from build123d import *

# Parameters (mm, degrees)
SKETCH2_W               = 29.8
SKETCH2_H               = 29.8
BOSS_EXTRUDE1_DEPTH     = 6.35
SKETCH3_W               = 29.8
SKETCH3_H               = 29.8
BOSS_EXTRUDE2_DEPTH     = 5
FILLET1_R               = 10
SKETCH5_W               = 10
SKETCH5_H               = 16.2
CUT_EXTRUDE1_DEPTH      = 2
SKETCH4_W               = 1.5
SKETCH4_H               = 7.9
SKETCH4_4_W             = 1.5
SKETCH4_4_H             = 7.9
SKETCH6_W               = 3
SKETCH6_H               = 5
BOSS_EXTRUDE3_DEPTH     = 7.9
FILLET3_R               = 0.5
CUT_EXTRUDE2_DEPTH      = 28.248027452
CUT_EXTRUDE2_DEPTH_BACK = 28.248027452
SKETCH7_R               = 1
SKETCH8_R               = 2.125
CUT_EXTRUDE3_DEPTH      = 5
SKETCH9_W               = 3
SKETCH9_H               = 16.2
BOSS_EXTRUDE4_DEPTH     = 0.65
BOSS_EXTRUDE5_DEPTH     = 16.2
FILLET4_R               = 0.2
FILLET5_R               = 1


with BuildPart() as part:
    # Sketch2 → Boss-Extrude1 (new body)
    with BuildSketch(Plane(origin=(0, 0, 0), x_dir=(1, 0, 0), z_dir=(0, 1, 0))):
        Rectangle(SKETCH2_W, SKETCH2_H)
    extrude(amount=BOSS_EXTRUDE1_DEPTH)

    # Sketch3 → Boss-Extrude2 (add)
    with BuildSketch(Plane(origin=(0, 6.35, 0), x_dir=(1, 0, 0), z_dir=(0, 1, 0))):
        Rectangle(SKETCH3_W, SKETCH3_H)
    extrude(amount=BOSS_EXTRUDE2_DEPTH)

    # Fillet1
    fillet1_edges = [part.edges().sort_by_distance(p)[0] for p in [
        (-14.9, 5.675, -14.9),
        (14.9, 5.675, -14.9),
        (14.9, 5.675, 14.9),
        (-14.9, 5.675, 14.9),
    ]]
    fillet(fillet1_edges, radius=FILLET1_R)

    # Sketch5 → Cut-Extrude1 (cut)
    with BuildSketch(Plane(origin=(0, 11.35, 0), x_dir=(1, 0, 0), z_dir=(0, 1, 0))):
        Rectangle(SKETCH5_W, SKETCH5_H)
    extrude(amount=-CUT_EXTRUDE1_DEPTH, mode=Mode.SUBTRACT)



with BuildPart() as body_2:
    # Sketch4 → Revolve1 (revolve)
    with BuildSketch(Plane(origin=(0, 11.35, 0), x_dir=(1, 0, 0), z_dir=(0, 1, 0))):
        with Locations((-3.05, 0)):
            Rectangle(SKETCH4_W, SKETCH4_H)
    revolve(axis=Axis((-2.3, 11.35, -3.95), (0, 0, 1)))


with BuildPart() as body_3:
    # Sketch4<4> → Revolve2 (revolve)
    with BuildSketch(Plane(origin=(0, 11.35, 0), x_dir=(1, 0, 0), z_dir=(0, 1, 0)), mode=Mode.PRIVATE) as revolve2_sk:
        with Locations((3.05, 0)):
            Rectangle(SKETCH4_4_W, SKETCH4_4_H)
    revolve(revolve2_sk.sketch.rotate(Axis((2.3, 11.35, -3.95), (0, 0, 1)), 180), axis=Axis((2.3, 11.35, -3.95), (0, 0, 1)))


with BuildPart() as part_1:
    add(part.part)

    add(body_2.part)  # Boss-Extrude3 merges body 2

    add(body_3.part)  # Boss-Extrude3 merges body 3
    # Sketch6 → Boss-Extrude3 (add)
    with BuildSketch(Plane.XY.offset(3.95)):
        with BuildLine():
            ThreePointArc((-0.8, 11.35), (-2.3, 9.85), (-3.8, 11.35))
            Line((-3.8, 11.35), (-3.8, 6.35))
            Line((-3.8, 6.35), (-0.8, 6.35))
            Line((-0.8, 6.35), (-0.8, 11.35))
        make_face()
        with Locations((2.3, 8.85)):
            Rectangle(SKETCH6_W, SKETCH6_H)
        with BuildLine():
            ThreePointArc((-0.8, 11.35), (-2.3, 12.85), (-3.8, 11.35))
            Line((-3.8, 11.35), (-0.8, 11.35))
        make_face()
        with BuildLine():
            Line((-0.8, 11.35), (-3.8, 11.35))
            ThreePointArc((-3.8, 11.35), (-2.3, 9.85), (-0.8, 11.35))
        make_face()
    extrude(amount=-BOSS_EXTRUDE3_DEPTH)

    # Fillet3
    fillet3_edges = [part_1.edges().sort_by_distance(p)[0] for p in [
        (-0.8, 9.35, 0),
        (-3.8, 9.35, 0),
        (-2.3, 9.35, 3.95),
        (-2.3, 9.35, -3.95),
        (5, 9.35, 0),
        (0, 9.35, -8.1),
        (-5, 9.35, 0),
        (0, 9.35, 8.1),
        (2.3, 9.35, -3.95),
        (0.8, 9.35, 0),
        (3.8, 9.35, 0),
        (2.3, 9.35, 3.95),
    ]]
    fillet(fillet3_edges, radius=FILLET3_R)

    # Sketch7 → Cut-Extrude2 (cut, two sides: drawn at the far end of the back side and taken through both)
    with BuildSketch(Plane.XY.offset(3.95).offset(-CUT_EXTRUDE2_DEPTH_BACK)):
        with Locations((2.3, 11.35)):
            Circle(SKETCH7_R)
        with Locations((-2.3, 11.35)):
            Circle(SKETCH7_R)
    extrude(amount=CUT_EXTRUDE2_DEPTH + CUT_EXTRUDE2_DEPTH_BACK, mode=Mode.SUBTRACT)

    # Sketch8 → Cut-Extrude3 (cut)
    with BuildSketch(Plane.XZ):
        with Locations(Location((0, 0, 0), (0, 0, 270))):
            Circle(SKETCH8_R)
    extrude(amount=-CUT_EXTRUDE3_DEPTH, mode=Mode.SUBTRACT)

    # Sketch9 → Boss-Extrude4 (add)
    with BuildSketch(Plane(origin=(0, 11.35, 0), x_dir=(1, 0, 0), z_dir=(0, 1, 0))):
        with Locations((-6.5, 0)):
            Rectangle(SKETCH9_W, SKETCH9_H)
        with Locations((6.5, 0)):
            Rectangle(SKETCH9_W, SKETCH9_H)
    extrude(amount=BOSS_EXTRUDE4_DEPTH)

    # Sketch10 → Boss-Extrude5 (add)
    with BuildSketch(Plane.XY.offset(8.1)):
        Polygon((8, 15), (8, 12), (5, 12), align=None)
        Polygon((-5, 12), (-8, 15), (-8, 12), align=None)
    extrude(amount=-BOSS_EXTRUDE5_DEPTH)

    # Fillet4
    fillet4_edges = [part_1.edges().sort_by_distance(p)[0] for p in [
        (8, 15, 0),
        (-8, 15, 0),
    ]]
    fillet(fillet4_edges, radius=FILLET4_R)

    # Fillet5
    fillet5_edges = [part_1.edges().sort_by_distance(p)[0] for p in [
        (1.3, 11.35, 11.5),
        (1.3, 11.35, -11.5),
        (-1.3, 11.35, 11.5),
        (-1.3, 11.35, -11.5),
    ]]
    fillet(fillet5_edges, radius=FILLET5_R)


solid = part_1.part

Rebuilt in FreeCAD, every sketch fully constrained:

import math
import FreeCAD as App
import Part
import Sketcher
from FreeCAD import Vector


def edges_at(feature, points):
    """Names of the edges that pass closest to the given points."""
    edges = feature.Shape.Edges
    near = lambda p: min(range(len(edges)), key=lambda i: edges[i].distToShape(Part.Vertex(*p))[0])
    return sorted({f"Edge{near(p) + 1}" for p in points})

doc = App.newDocument("Part")
body = doc.addObject("PartDesign::Body", "Body")

sketch1 = body.newObject("Sketcher::SketchObject", "Sketch")
sketch1.AttachmentSupport = (doc.getObject("XZ_Plane"), [""])
sketch1.MapMode = "FlatFace"
sketch1.addGeometry(Part.LineSegment(Vector(-14.9, -14.9, 0), Vector(-14.9, 14.9, 0)), False)
sketch1.addGeometry(Part.LineSegment(Vector(-14.9, 14.9, 0), Vector(14.9, 14.9, 0)), False)
sketch1.addGeometry(Part.LineSegment(Vector(14.9, 14.9, 0), Vector(14.9, -14.9, 0)), False)
sketch1.addGeometry(Part.LineSegment(Vector(14.9, -14.9, 0), Vector(-14.9, -14.9, 0)), False)
sketch1.addConstraint(Sketcher.Constraint("Coincident", 0, 2, 1, 1))
sketch1.addConstraint(Sketcher.Constraint("Coincident", 1, 2, 2, 1))
sketch1.addConstraint(Sketcher.Constraint("Coincident", 2, 2, 3, 1))
sketch1.addConstraint(Sketcher.Constraint("Coincident", 3, 2, 0, 1))
sketch1.addConstraint(Sketcher.Constraint("Vertical", 0))
sketch1.addConstraint(Sketcher.Constraint("Horizontal", 1))
sketch1.addConstraint(Sketcher.Constraint("Vertical", 2))
sketch1.addConstraint(Sketcher.Constraint("Horizontal", 3))
sketch1.addConstraint(Sketcher.Constraint("Symmetric", 0, 2, 2, 2, -1, 1))
sketch1.addConstraint(Sketcher.Constraint("Equal", 3, 0))
sketch1.addConstraint(Sketcher.Constraint("DistanceX", 1, 1, 1, 2, 29.8))
pad1 = body.newObject("PartDesign::Pad", "Pad")
pad1.Profile = sketch1
pad1.Length = 6.35
pad1.Reversed = True

sketch2 = body.newObject("Sketcher::SketchObject", "Sketch001")
sketch2.AttachmentSupport = (doc.getObject("XZ_Plane"), [""])
sketch2.MapMode = "FlatFace"
sketch2.AttachmentOffset = App.Placement(Vector(0, 0, -6.35), App.Rotation())
sketch2.addGeometry(Part.LineSegment(Vector(-14.9, -14.9, 0), Vector(-14.9, 14.9, 0)), False)
sketch2.addGeometry(Part.LineSegment(Vector(-14.9, 14.9, 0), Vector(14.9, 14.9, 0)), False)
sketch2.addGeometry(Part.LineSegment(Vector(14.9, 14.9, 0), Vector(14.9, -14.9, 0)), False)
sketch2.addGeometry(Part.LineSegment(Vector(14.9, -14.9, 0), Vector(-14.9, -14.9, 0)), False)
sketch2.addConstraint(Sketcher.Constraint("Coincident", 0, 2, 1, 1))
sketch2.addConstraint(Sketcher.Constraint("Coincident", 1, 2, 2, 1))
sketch2.addConstraint(Sketcher.Constraint("Coincident", 2, 2, 3, 1))
sketch2.addConstraint(Sketcher.Constraint("Coincident", 3, 2, 0, 1))
sketch2.addConstraint(Sketcher.Constraint("Vertical", 0))
sketch2.addConstraint(Sketcher.Constraint("Horizontal", 1))
sketch2.addConstraint(Sketcher.Constraint("Vertical", 2))
sketch2.addConstraint(Sketcher.Constraint("Horizontal", 3))
sketch2.addConstraint(Sketcher.Constraint("Symmetric", 0, 2, 2, 2, -1, 1))
sketch2.addConstraint(Sketcher.Constraint("Equal", 3, 0))
sketch2.addConstraint(Sketcher.Constraint("DistanceX", 1, 1, 1, 2, 29.8))
pad2 = body.newObject("PartDesign::Pad", "Pad001")
pad2.Profile = sketch2
pad2.Length = 5
pad2.Reversed = True
doc.recompute()

fillet = body.newObject("PartDesign::Fillet", "Fillet")
fillet.Base = (pad2, edges_at(pad2, [
    (-14.9, 5.675, -14.9),
    (14.9, 5.675, -14.9),
    (14.9, 5.675, 14.9),
    (-14.9, 5.675, 14.9),
]))
fillet.Radius = 10

sketch3 = body.newObject("Sketcher::SketchObject", "Sketch002")
sketch3.AttachmentSupport = (doc.getObject("XZ_Plane"), [""])
sketch3.MapMode = "FlatFace"
sketch3.AttachmentOffset = App.Placement(Vector(0, 0, -11.35), App.Rotation())
sketch3.addGeometry(Part.LineSegment(Vector(-5, -8.1, 0), Vector(-5, 8.1, 0)), False)
sketch3.addGeometry(Part.LineSegment(Vector(-5, 8.1, 0), Vector(5, 8.1, 0)), False)
sketch3.addGeometry(Part.LineSegment(Vector(5, 8.1, 0), Vector(5, -8.1, 0)), False)
sketch3.addGeometry(Part.LineSegment(Vector(5, -8.1, 0), Vector(-5, -8.1, 0)), False)
sketch3.addConstraint(Sketcher.Constraint("Coincident", 0, 2, 1, 1))
sketch3.addConstraint(Sketcher.Constraint("Coincident", 1, 2, 2, 1))
sketch3.addConstraint(Sketcher.Constraint("Coincident", 2, 2, 3, 1))
sketch3.addConstraint(Sketcher.Constraint("Coincident", 3, 2, 0, 1))
sketch3.addConstraint(Sketcher.Constraint("Vertical", 0))
sketch3.addConstraint(Sketcher.Constraint("Horizontal", 1))
sketch3.addConstraint(Sketcher.Constraint("Vertical", 2))
sketch3.addConstraint(Sketcher.Constraint("Horizontal", 3))
sketch3.addConstraint(Sketcher.Constraint("Symmetric", 0, 2, 2, 2, -1, 1))
sketch3.addConstraint(Sketcher.Constraint("DistanceX", 1, 1, 1, 2, 10.0))
sketch3.addConstraint(Sketcher.Constraint("DistanceY", 0, 1, 0, 2, 16.2))
pocket1 = body.newObject("PartDesign::Pocket", "Pocket")
pocket1.Profile = sketch3
pocket1.Length = 2
pocket1.Reversed = True
body2 = doc.addObject("PartDesign::Body", "Body001")

sketch4 = body2.newObject("Sketcher::SketchObject", "Sketch003")
sketch4.AttachmentSupport = (doc.getObject("XZ_Plane001"), [""])
sketch4.MapMode = "FlatFace"
sketch4.AttachmentOffset = App.Placement(Vector(0, 0, -11.35), App.Rotation())
sketch4.addGeometry(Part.LineSegment(Vector(-3.8, -3.95, 0), Vector(-3.8, 3.95, 0)), False)
sketch4.addGeometry(Part.LineSegment(Vector(-3.8, 3.95, 0), Vector(-2.3, 3.95, 0)), False)
sketch4.addGeometry(Part.LineSegment(Vector(-2.3, 3.95, 0), Vector(-2.3, -3.95, 0)), False)
sketch4.addGeometry(Part.LineSegment(Vector(-2.3, -3.95, 0), Vector(-3.8, -3.95, 0)), False)
sketch4.addGeometry(Part.LineSegment(Vector(-2.3, -3.95, 0), Vector(-2.3, 3.95, 0)), True)
sketch4.addConstraint(Sketcher.Constraint("Coincident", 0, 2, 1, 1))
sketch4.addConstraint(Sketcher.Constraint("Coincident", 1, 2, 2, 1))
sketch4.addConstraint(Sketcher.Constraint("Coincident", 2, 2, 3, 1))
sketch4.addConstraint(Sketcher.Constraint("Coincident", 3, 2, 0, 1))
sketch4.addConstraint(Sketcher.Constraint("Vertical", 0))
sketch4.addConstraint(Sketcher.Constraint("Horizontal", 1))
sketch4.addConstraint(Sketcher.Constraint("Vertical", 2))
sketch4.addConstraint(Sketcher.Constraint("Horizontal", 3))
sketch4.addConstraint(Sketcher.Constraint("Vertical", 4))
sketch4.addConstraint(Sketcher.Constraint("Coincident", 4, 1, 2, 2))
sketch4.addConstraint(Sketcher.Constraint("Horizontal", 0, 2, 4, 2))
sketch4.addConstraint(Sketcher.Constraint("DistanceX", 1, 1, 1, 2, 1.5))
sketch4.addConstraint(Sketcher.Constraint("DistanceY", 0, 1, 0, 2, 7.9))
sketch4.addConstraint(Sketcher.Constraint("DistanceX", 0, 2, -1, 1, 3.8))
sketch4.addConstraint(Sketcher.Constraint("DistanceY", -1, 1, 0, 2, 3.95))
revolution = body2.newObject("PartDesign::Revolution", "Revolution")
revolution.Profile = sketch4
revolution.ReferenceAxis = (sketch4, ["Axis0"])
revolution.Angle = 360
body3 = doc.addObject("PartDesign::Body", "Body002")

sketch5 = body3.newObject("Sketcher::SketchObject", "Sketch004")
sketch5.AttachmentSupport = (doc.getObject("XZ_Plane002"), [""])
sketch5.MapMode = "FlatFace"
sketch5.AttachmentOffset = App.Placement(Vector(0, 0, -11.35), App.Rotation())
sketch5.addGeometry(Part.LineSegment(Vector(2.3, -3.95, 0), Vector(2.3, 3.95, 0)), False)
sketch5.addGeometry(Part.LineSegment(Vector(2.3, 3.95, 0), Vector(3.8, 3.95, 0)), False)
sketch5.addGeometry(Part.LineSegment(Vector(3.8, 3.95, 0), Vector(3.8, -3.95, 0)), False)
sketch5.addGeometry(Part.LineSegment(Vector(3.8, -3.95, 0), Vector(2.3, -3.95, 0)), False)
sketch5.addGeometry(Part.LineSegment(Vector(2.3, -3.95, 0), Vector(2.3, 3.95, 0)), True)
sketch5.addConstraint(Sketcher.Constraint("Coincident", 0, 2, 1, 1))
sketch5.addConstraint(Sketcher.Constraint("Coincident", 1, 2, 2, 1))
sketch5.addConstraint(Sketcher.Constraint("Coincident", 2, 2, 3, 1))
sketch5.addConstraint(Sketcher.Constraint("Coincident", 3, 2, 0, 1))
sketch5.addConstraint(Sketcher.Constraint("Vertical", 0))
sketch5.addConstraint(Sketcher.Constraint("Horizontal", 1))
sketch5.addConstraint(Sketcher.Constraint("Vertical", 2))
sketch5.addConstraint(Sketcher.Constraint("Horizontal", 3))
sketch5.addConstraint(Sketcher.Constraint("Vertical", 4))
sketch5.addConstraint(Sketcher.Constraint("Coincident", 4, 1, 3, 2))
sketch5.addConstraint(Sketcher.Constraint("Horizontal", 1, 2, 4, 2))
sketch5.addConstraint(Sketcher.Constraint("DistanceX", 1, 1, 1, 2, 1.5))
sketch5.addConstraint(Sketcher.Constraint("DistanceY", 0, 1, 0, 2, 7.9))
sketch5.addConstraint(Sketcher.Constraint("DistanceX", -1, 1, 0, 2, 2.3))
sketch5.addConstraint(Sketcher.Constraint("DistanceY", -1, 1, 0, 2, 3.95))
revolution2 = body3.newObject("PartDesign::Revolution", "Revolution001")
revolution2.Profile = sketch5
revolution2.ReferenceAxis = (sketch5, ["Axis0"])
revolution2.Angle = 360
body.AllowCompound = True
doc.recompute()

boolean = body.newObject("PartDesign::Boolean", "Boolean")
boolean.Type = "Fuse"
boolean.addObjects([body2])
doc.recompute()

boolean2 = body.newObject("PartDesign::Boolean", "Boolean001")
boolean2.Type = "Fuse"
boolean2.addObjects([body3])

sketch6 = body.newObject("Sketcher::SketchObject", "Sketch005")
sketch6.AttachmentSupport = (doc.getObject("XY_Plane"), [""])
sketch6.MapMode = "FlatFace"
sketch6.AttachmentOffset = App.Placement(Vector(0, 0, 3.95), App.Rotation())
sketch6.addGeometry(Part.LineSegment(Vector(-3.8, 11.35, 0), Vector(-3.8, 6.35, 0)), False)
sketch6.addGeometry(Part.LineSegment(Vector(-3.8, 6.35, 0), Vector(-0.8, 6.35, 0)), False)
sketch6.addGeometry(Part.LineSegment(Vector(-0.8, 6.35, 0), Vector(-0.8, 11.35, 0)), False)
sketch6.addGeometry(Part.ArcOfCircle(Part.Circle(Vector(-2.3, 11.35, 0), Vector(0, 0, 1), 1.5), math.radians(0), math.radians(180)), False)
sketch6.addGeometry(Part.LineSegment(Vector(0.8, 11.35, 0), Vector(0.8, 6.35, 0)), False)
sketch6.addGeometry(Part.LineSegment(Vector(0.8, 6.35, 0), Vector(3.8, 6.35, 0)), False)
sketch6.addGeometry(Part.LineSegment(Vector(3.8, 6.35, 0), Vector(3.8, 11.35, 0)), False)
sketch6.addGeometry(Part.LineSegment(Vector(3.8, 11.35, 0), Vector(0.8, 11.35, 0)), False)
sketch6.addConstraint(Sketcher.Constraint("Coincident", 0, 2, 1, 1))
sketch6.addConstraint(Sketcher.Constraint("Coincident", 1, 2, 2, 1))
sketch6.addConstraint(Sketcher.Constraint("Tangent", 2, 2, 3, 1))
sketch6.addConstraint(Sketcher.Constraint("Tangent", 3, 2, 0, 1))
sketch6.addConstraint(Sketcher.Constraint("Coincident", 4, 2, 5, 1))
sketch6.addConstraint(Sketcher.Constraint("Coincident", 5, 2, 6, 1))
sketch6.addConstraint(Sketcher.Constraint("Coincident", 6, 2, 7, 1))
sketch6.addConstraint(Sketcher.Constraint("Coincident", 7, 2, 4, 1))
sketch6.addConstraint(Sketcher.Constraint("Vertical", 0))
sketch6.addConstraint(Sketcher.Constraint("Horizontal", 1))
sketch6.addConstraint(Sketcher.Constraint("Vertical", 2))
sketch6.addConstraint(Sketcher.Constraint("Vertical", 4))
sketch6.addConstraint(Sketcher.Constraint("Horizontal", 5))
sketch6.addConstraint(Sketcher.Constraint("Vertical", 6))
sketch6.addConstraint(Sketcher.Constraint("Horizontal", 7))
sketch6.addConstraint(Sketcher.Constraint("Symmetric", 1, 2, 4, 2, -2))
sketch6.addConstraint(Sketcher.Constraint("Symmetric", 3, 2, 6, 2, -2))
sketch6.addConstraint(Sketcher.Constraint("Radius", 3, 1.5))
sketch6.addConstraint(Sketcher.Constraint("DistanceY", 0, 2, 0, 1, 5.0))
sketch6.addConstraint(Sketcher.Constraint("DistanceX", 3, 3, -1, 1, 2.3))
sketch6.addConstraint(Sketcher.Constraint("DistanceY", -1, 1, 3, 3, 11.35))
pad3 = body.newObject("PartDesign::Pad", "Pad002")
pad3.Profile = sketch6
pad3.Length = 7.9
pad3.Reversed = True
doc.recompute()

fillet2 = body.newObject("PartDesign::Fillet", "Fillet001")
fillet2.Base = (pad3, edges_at(pad3, [
    (-0.8, 9.35, 0),
    (-3.8, 9.35, 0),
    (-2.3, 9.35, 3.95),
    (-2.3, 9.35, -3.95),
    (5, 9.35, 0),
    (0, 9.35, -8.1),
    (-5, 9.35, 0),
    (0, 9.35, 8.1),
    (2.3, 9.35, -3.95),
    (0.8, 9.35, 0),
    (3.8, 9.35, 0),
    (2.3, 9.35, 3.95),
]))
fillet2.Radius = 0.5

sketch7 = body.newObject("Sketcher::SketchObject", "Sketch006")
sketch7.AttachmentSupport = (doc.getObject("XY_Plane"), [""])
sketch7.MapMode = "FlatFace"
sketch7.AttachmentOffset = App.Placement(Vector(0, 0, 3.95), App.Rotation())
sketch7.addGeometry(Part.Circle(Vector(2.3, 11.35, 0), Vector(0, 0, 1), 1), False)
sketch7.addGeometry(Part.Circle(Vector(-2.3, 11.35, 0), Vector(0, 0, 1), 1), False)
sketch7.addConstraint(Sketcher.Constraint("Equal", 0, 1))
sketch7.addConstraint(Sketcher.Constraint("Symmetric", 0, 3, 1, 3, -2))
sketch7.addConstraint(Sketcher.Constraint("Diameter", 0, 2.0))
sketch7.addConstraint(Sketcher.Constraint("DistanceX", -1, 1, 0, 3, 2.3))
sketch7.addConstraint(Sketcher.Constraint("DistanceY", -1, 1, 0, 3, 11.35))
pocket2 = body.newObject("PartDesign::Pocket", "Pocket001")
pocket2.Profile = sketch7
pocket2.Type = "ThroughAll"
pocket2.Midplane = True

sketch8 = body.newObject("Sketcher::SketchObject", "Sketch007")
sketch8.AttachmentSupport = (doc.getObject("XZ_Plane"), [""])
sketch8.MapMode = "FlatFace"
sketch8.addGeometry(Part.Circle(Vector(0, 0, 0), Vector(0, 0, 1), 2.125), False)
sketch8.addConstraint(Sketcher.Constraint("Coincident", 0, 3, -1, 1))
sketch8.addConstraint(Sketcher.Constraint("Diameter", 0, 4.25))
pocket3 = body.newObject("PartDesign::Pocket", "Pocket002")
pocket3.Profile = sketch8
pocket3.Length = 5

sketch9 = body.newObject("Sketcher::SketchObject", "Sketch008")
sketch9.AttachmentSupport = (doc.getObject("XZ_Plane"), [""])
sketch9.MapMode = "FlatFace"
sketch9.AttachmentOffset = App.Placement(Vector(0, 0, -11.35), App.Rotation())
sketch9.addGeometry(Part.LineSegment(Vector(-8, -8.1, 0), Vector(-8, 8.1, 0)), False)
sketch9.addGeometry(Part.LineSegment(Vector(-8, 8.1, 0), Vector(-5, 8.1, 0)), False)
sketch9.addGeometry(Part.LineSegment(Vector(-5, 8.1, 0), Vector(-5, -8.1, 0)), False)
sketch9.addGeometry(Part.LineSegment(Vector(-5, -8.1, 0), Vector(-8, -8.1, 0)), False)
sketch9.addGeometry(Part.LineSegment(Vector(5, -8.1, 0), Vector(5, 8.1, 0)), False)
sketch9.addGeometry(Part.LineSegment(Vector(5, 8.1, 0), Vector(8, 8.1, 0)), False)
sketch9.addGeometry(Part.LineSegment(Vector(8, 8.1, 0), Vector(8, -8.1, 0)), False)
sketch9.addGeometry(Part.LineSegment(Vector(8, -8.1, 0), Vector(5, -8.1, 0)), False)
sketch9.addConstraint(Sketcher.Constraint("Coincident", 0, 2, 1, 1))
sketch9.addConstraint(Sketcher.Constraint("Coincident", 1, 2, 2, 1))
sketch9.addConstraint(Sketcher.Constraint("Coincident", 2, 2, 3, 1))
sketch9.addConstraint(Sketcher.Constraint("Coincident", 3, 2, 0, 1))
sketch9.addConstraint(Sketcher.Constraint("Coincident", 4, 2, 5, 1))
sketch9.addConstraint(Sketcher.Constraint("Coincident", 5, 2, 6, 1))
sketch9.addConstraint(Sketcher.Constraint("Coincident", 6, 2, 7, 1))
sketch9.addConstraint(Sketcher.Constraint("Coincident", 7, 2, 4, 1))
sketch9.addConstraint(Sketcher.Constraint("Vertical", 0))
sketch9.addConstraint(Sketcher.Constraint("Horizontal", 1))
sketch9.addConstraint(Sketcher.Constraint("Vertical", 2))
sketch9.addConstraint(Sketcher.Constraint("Horizontal", 3))
sketch9.addConstraint(Sketcher.Constraint("Vertical", 4))
sketch9.addConstraint(Sketcher.Constraint("Horizontal", 5))
sketch9.addConstraint(Sketcher.Constraint("Vertical", 6))
sketch9.addConstraint(Sketcher.Constraint("Horizontal", 7))
sketch9.addConstraint(Sketcher.Constraint("Symmetric", 2, 2, 4, 2, -1, 1))
sketch9.addConstraint(Sketcher.Constraint("Symmetric", 0, 2, 6, 2, -1, 1))
sketch9.addConstraint(Sketcher.Constraint("Horizontal", 1, 2, 4, 2))
sketch9.addConstraint(Sketcher.Constraint("DistanceX", 1, 1, 1, 2, 3.0))
sketch9.addConstraint(Sketcher.Constraint("DistanceY", 0, 1, 0, 2, 16.2))
sketch9.addConstraint(Sketcher.Constraint("DistanceX", 0, 2, -1, 1, 8.0))
pad4 = body.newObject("PartDesign::Pad", "Pad003")
pad4.Profile = sketch9
pad4.Length = 0.65
pad4.Reversed = True

sketch10 = body.newObject("Sketcher::SketchObject", "Sketch009")
sketch10.AttachmentSupport = (doc.getObject("XY_Plane"), [""])
sketch10.MapMode = "FlatFace"
sketch10.AttachmentOffset = App.Placement(Vector(0, 0, 8.1), App.Rotation())
sketch10.addGeometry(Part.LineSegment(Vector(8, 12, 0), Vector(8, 15, 0)), False)
sketch10.addGeometry(Part.LineSegment(Vector(8, 15, 0), Vector(5, 12, 0)), False)
sketch10.addGeometry(Part.LineSegment(Vector(5, 12, 0), Vector(8, 12, 0)), False)
sketch10.addGeometry(Part.LineSegment(Vector(-5, 12, 0), Vector(-8, 15, 0)), False)
sketch10.addGeometry(Part.LineSegment(Vector(-8, 15, 0), Vector(-8, 12, 0)), False)
sketch10.addGeometry(Part.LineSegment(Vector(-8, 12, 0), Vector(-5, 12, 0)), False)
sketch10.addConstraint(Sketcher.Constraint("Coincident", 0, 2, 1, 1))
sketch10.addConstraint(Sketcher.Constraint("Coincident", 1, 2, 2, 1))
sketch10.addConstraint(Sketcher.Constraint("Coincident", 2, 2, 0, 1))
sketch10.addConstraint(Sketcher.Constraint("Coincident", 3, 2, 4, 1))
sketch10.addConstraint(Sketcher.Constraint("Coincident", 4, 2, 5, 1))
sketch10.addConstraint(Sketcher.Constraint("Coincident", 5, 2, 3, 1))
sketch10.addConstraint(Sketcher.Constraint("Vertical", 0))
sketch10.addConstraint(Sketcher.Constraint("Horizontal", 2))
sketch10.addConstraint(Sketcher.Constraint("Vertical", 4))
sketch10.addConstraint(Sketcher.Constraint("Horizontal", 5))
sketch10.addConstraint(Sketcher.Constraint("Symmetric", 0, 2, 3, 2, -2))
sketch10.addConstraint(Sketcher.Constraint("Symmetric", 1, 2, 5, 2, -2))
sketch10.addConstraint(Sketcher.Constraint("Perpendicular", 1, 3))
sketch10.addConstraint(Sketcher.Constraint("DistanceX", 2, 1, 2, 2, 3.0))
sketch10.addConstraint(Sketcher.Constraint("DistanceX", -1, 1, 0, 2, 8.0))
sketch10.addConstraint(Sketcher.Constraint("DistanceY", -1, 1, 0, 2, 15.0))
pad5 = body.newObject("PartDesign::Pad", "Pad004")
pad5.Profile = sketch10
pad5.Length = 16.2
pad5.Reversed = True
doc.recompute()

fillet3 = body.newObject("PartDesign::Fillet", "Fillet002")
fillet3.Base = (pad5, edges_at(pad5, [(8, 15, 0), (-8, 15, 0)]))
fillet3.Radius = 0.2
doc.recompute()

fillet4 = body.newObject("PartDesign::Fillet", "Fillet003")
fillet4.Base = (fillet3, edges_at(fillet3, [
    (1.3, 11.35, 11.5),
    (1.3, 11.35, -11.5),
    (-1.3, 11.35, 11.5),
    (-1.3, 11.35, -11.5),
]))
fillet4.Radius = 1

doc.recompute()
